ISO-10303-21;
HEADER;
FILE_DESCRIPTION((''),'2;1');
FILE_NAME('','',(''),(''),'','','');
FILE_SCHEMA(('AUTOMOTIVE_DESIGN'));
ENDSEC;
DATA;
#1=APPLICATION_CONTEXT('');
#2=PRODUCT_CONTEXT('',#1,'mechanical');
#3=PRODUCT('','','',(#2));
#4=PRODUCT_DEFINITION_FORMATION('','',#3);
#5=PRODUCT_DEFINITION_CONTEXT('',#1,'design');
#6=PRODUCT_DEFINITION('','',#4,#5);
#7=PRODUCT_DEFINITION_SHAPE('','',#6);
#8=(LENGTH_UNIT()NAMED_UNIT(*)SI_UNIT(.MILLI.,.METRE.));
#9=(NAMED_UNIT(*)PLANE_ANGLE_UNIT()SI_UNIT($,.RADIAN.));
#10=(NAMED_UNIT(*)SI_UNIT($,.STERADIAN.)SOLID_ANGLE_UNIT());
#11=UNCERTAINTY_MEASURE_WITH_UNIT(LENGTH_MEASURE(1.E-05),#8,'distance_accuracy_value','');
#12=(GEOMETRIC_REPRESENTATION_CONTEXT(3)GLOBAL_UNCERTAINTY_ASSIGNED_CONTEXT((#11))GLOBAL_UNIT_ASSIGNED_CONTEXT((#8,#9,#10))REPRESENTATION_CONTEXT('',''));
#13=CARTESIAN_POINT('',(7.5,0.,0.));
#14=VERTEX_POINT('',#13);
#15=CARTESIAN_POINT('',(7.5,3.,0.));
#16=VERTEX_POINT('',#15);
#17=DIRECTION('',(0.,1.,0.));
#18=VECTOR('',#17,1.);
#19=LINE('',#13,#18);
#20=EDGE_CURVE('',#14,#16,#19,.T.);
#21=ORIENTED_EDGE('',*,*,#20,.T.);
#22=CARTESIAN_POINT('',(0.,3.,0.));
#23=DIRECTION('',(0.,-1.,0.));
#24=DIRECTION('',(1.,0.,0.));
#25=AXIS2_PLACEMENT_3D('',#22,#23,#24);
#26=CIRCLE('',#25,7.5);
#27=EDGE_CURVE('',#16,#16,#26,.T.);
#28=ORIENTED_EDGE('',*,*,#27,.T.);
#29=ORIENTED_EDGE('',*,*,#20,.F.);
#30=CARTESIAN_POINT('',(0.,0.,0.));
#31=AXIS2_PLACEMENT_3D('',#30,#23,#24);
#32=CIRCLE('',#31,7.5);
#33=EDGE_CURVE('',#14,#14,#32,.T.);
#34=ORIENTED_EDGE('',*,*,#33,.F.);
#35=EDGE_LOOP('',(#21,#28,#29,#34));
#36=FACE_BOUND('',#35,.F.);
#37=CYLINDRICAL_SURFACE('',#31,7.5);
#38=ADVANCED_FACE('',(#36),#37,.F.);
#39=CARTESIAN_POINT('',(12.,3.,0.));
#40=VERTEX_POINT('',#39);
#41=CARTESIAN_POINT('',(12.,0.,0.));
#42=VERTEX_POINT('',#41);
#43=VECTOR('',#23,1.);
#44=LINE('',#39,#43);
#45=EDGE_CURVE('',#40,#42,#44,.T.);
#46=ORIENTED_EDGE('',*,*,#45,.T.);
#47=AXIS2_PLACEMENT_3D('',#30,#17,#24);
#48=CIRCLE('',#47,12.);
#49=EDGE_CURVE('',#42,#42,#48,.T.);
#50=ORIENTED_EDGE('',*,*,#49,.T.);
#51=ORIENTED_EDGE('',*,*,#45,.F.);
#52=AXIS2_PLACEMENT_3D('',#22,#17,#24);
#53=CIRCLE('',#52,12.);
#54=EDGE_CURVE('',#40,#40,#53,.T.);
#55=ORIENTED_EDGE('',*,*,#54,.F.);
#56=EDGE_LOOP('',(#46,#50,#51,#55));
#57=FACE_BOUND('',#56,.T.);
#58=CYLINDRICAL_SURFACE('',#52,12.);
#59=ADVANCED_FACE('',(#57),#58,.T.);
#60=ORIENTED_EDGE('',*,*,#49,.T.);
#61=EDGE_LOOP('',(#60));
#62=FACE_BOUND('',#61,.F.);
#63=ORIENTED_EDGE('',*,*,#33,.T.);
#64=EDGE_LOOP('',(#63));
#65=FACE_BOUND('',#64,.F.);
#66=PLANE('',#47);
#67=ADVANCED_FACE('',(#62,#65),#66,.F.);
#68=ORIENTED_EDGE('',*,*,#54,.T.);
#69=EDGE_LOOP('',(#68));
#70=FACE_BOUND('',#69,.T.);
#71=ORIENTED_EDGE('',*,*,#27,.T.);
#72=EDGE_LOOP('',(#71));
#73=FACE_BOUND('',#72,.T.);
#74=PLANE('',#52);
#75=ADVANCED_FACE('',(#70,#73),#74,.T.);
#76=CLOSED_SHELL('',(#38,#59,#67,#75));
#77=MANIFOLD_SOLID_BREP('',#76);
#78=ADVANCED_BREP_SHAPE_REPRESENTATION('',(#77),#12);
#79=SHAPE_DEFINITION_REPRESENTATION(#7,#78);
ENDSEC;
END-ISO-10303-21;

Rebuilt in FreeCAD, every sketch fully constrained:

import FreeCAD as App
import Part
import Sketcher

V = App.Vector
Q = App.Units.Quantity

doc = App.newDocument("Part")
body = doc.addObject("PartDesign::Body", "Body")

# Sketch on XZ plane
sketch1 = body.newObject("Sketcher::SketchObject", "Sketch")
sketch1.AttachmentSupport = (doc.getObject("XZ_Plane"), [""])
sketch1.MapMode = "FlatFace"
sketch1.addGeometry([
    Part.Circle(V(0, 0, 0), V(0, 0, 1), 10),
    Part.Circle(V(0, 0, 0), V(0, 0, 1), 8),
], False)
sketch1.addConstraint([
    Sketcher.Constraint("Coincident", 0, 3, -1, 1),
    Sketcher.Constraint("Coincident", 1, 3, -1, 1),
    Sketcher.Constraint("Diameter", 0, Q("20 mm")),
    Sketcher.Constraint("Diameter", 1, Q("15 mm")),
])
pad1 = body.newObject("PartDesign::Pad", "Pad")
pad1.Profile = sketch1
pad1.Length = 3
pad1.Reversed = True

# Sketch on XZ plane
sketch2 = body.newObject("Sketcher::SketchObject", "Sketch001")
sketch2.AttachmentSupport = (doc.getObject("XZ_Plane"), [""])
sketch2.MapMode = "FlatFace"
sketch2.AttachmentOffset = App.Placement(V(0, 0, -3), App.Rotation())
sketch2.addGeometry(Part.Circle(V(0, 0, 0), V(0, 0, 1), 14), False)
sketch2.addConstraint([
    Sketcher.Constraint("Coincident", 0, 3, -1, 1),
    Sketcher.Constraint("Diameter", 0, Q("27 mm")),
])
pad2 = body.newObject("PartDesign::Pad", "Pad001")
pad2.Profile = sketch2
pad2.Length = 3

# Sketch on XZ plane
sketch3 = body.newObject("Sketcher::SketchObject", "Sketch002")
sketch3.AttachmentSupport = (doc.getObject("XZ_Plane"), [""])
sketch3.MapMode = "FlatFace"
sketch3.addGeometry(Part.Circle(V(0, 0, 0), V(0, 0, 1), 8), False)
sketch3.addConstraint([
    Sketcher.Constraint("Coincident", 0, 3, -1, 1),
    Sketcher.Constraint("Diameter", 0, Q("15 mm")),
])
pocket1 = body.newObject("PartDesign::Pocket", "Pocket")
pocket1.Profile = sketch3
pocket1.Length = 3

# Sketch on XZ plane
sketch4 = body.newObject("Sketcher::SketchObject", "Sketch003")
sketch4.AttachmentSupport = (doc.getObject("XZ_Plane"), [""])
sketch4.MapMode = "FlatFace"
sketch4.AttachmentOffset = App.Placement(V(0, 0, -3), App.Rotation())
sketch4.addGeometry([
    Part.Circle(V(0, 0, 0), V(0, 0, 1), 14),
    Part.Circle(V(0, 0, 0), V(0, 0, 1), 12),
], False)
sketch4.addConstraint([
    Sketcher.Constraint("Coincident", 0, 3, -1, 1),
    Sketcher.Constraint("Coincident", 1, 3, -1, 1),
    Sketcher.Constraint("Diameter", 1, Q("24 mm")),
    Sketcher.Constraint("Diameter", 0, Q("27 mm")),
])
pocket2 = body.newObject("PartDesign::Pocket", "Pocket001")
pocket2.Profile = sketch4
pocket2.Length = 3
pocket2.Reversed = True

doc.recompute()
